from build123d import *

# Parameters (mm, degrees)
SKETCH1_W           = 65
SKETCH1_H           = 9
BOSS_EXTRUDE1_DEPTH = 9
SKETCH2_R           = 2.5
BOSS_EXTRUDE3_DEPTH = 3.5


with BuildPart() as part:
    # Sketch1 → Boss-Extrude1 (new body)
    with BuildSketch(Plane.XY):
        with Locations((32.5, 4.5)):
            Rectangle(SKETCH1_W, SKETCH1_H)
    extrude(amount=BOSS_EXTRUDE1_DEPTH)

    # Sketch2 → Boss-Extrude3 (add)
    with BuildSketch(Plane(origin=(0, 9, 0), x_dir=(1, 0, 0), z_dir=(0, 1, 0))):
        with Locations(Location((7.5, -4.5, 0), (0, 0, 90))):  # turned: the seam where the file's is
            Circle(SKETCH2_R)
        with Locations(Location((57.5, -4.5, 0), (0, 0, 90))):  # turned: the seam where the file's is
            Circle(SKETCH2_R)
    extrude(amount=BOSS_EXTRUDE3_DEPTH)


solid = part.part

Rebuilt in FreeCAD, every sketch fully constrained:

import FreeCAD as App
import Part
import Sketcher

V = App.Vector
Q = App.Units.Quantity

doc = App.newDocument("Part")
body = doc.addObject("PartDesign::Body", "Body")

# Sketch on XY plane
sketch1 = body.newObject("Sketcher::SketchObject", "Sketch")
sketch1.AttachmentSupport = (doc.getObject("XY_Plane"), [""])
sketch1.MapMode = "FlatFace"
sketch1.addGeometry([
    Part.LineSegment(V(0, 9, 0), V(0, 0, 0)),
    Part.LineSegment(V(0, 0, 0), V(65, 0, 0)),
    Part.LineSegment(V(65, 0, 0), V(65, 9, 0)),
    Part.LineSegment(V(65, 9, 0), V(0, 9, 0)),
], False)
sketch1.addConstraint([
    Sketcher.Constraint("Coincident", 0, 2, 1, 1),
    Sketcher.Constraint("Coincident", 1, 2, 2, 1),
    Sketcher.Constraint("Coincident", 2, 2, 3, 1),
    Sketcher.Constraint("Coincident", 3, 2, 0, 1),
    Sketcher.Constraint("Vertical", 0),
    Sketcher.Constraint("Horizontal", 1),
    Sketcher.Constraint("Vertical", 2),
    Sketcher.Constraint("Horizontal", 3),
    Sketcher.Constraint("Coincident", 0, 2, -1, 1),
    Sketcher.Constraint("DistanceX", 1, 1, 1, 2, Q("65 mm")),
    Sketcher.Constraint("DistanceY", 0, 2, 0, 1, Q("9 mm")),
])
pad1 = body.newObject("PartDesign::Pad", "Pad")
pad1.Profile = sketch1
pad1.Length = 9

# Sketch on XZ plane
sketch2 = body.newObject("Sketcher::SketchObject", "Sketch001")
sketch2.AttachmentSupport = (doc.getObject("XZ_Plane"), [""])
sketch2.MapMode = "FlatFace"
sketch2.AttachmentOffset = App.Placement(V(0, 0, -9), App.Rotation())
sketch2.addGeometry([
    Part.Circle(V(7.5, 4.5, 0), V(0, 0, 1), 2.5),
    Part.Circle(V(57.5, 4.5, 0), V(0, 0, 1), 2.5),
], False)
sketch2.addConstraint([
    Sketcher.Constraint("Equal", 0, 1),
    Sketcher.Constraint("Horizontal", 0, 3, 1, 3),
    Sketcher.Constraint("Diameter", 0, Q("5 mm")),
    Sketcher.Constraint("DistanceX", 0, 3, 1, 3, Q("50 mm")),
    Sketcher.Constraint("DistanceX", -1, 1, 0, 3, Q("7.5 mm")),
    Sketcher.Constraint("DistanceY", -1, 1, 0, 3, Q("4.5 mm")),
])
pad2 = body.newObject("PartDesign::Pad", "Pad001")
pad2.Profile = sketch2
pad2.Length = 3.5
pad2.Reversed = True

doc.recompute()
